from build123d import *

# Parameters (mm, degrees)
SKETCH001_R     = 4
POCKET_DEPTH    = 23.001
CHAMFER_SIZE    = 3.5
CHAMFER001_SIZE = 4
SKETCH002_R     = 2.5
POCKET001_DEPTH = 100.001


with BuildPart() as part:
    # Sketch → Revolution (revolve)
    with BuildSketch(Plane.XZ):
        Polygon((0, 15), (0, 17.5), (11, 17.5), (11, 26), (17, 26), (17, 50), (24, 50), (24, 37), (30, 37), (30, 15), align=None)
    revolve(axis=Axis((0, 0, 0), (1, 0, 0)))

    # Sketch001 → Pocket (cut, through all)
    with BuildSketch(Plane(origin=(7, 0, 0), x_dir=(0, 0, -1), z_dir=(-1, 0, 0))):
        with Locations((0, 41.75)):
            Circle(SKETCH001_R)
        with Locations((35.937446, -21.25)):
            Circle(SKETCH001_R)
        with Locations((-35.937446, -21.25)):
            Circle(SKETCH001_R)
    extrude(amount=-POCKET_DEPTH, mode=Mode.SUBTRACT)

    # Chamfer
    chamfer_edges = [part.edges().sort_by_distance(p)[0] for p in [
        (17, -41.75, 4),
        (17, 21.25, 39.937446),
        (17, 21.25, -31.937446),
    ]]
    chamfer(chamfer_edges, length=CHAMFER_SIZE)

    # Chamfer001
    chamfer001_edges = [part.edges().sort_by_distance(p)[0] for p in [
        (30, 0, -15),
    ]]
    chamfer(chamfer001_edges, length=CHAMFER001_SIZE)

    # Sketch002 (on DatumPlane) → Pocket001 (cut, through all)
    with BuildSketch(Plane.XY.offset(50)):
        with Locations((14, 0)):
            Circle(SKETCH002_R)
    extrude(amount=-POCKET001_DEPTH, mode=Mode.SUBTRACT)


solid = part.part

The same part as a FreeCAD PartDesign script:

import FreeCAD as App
import Part
import Sketcher
from FreeCAD import Vector
Q = App.Units.Quantity


def edges_at(feature, points):
    """Names of the edges that pass closest to the given points."""
    edges = feature.Shape.Edges
    near = lambda p: min(range(len(edges)), key=lambda i: edges[i].distToShape(Part.Vertex(*p))[0])
    return sorted({f"Edge{near(p) + 1}" for p in points})

doc = App.newDocument("Part")
params = doc.addObject("Spreadsheet::Sheet", "Params")
for row, (alias, value) in enumerate([
    ("sketch1_width", "30 mm"),
    ("sketch1_width2", "6 mm"),
    ("sketch1_width3", "7 mm"),
    ("sketch1_height", "22 mm"),
    ("sketch1_height2", "13 mm"),
    ("revolution_angle", "360 deg"),
    ("sketch2_diameter", "8 mm"),
    ("chamfer_size", "3.5 mm"),
    ("chamfer2_size", "4 mm"),
    ("sketch3_diameter", "5 mm"),
], start=1):
    params.set(f"A{row}", alias)
    params.set(f"B{row}", "=" + value)
    params.setAlias(f"B{row}", alias)

body = doc.addObject("PartDesign::Body", "Body")

sketch1 = doc.addObject("Sketcher::SketchObject", "Sketch")
body.addObject(sketch1)
sketch1.AttachmentSupport = (doc.XZ_Plane, [""])
sketch1.MapMode = "FlatFace"
sketch1.addGeometry([
    Part.LineSegment(Vector(0, 17.5, 0), Vector(0, 15, 0)),
    Part.LineSegment(Vector(0, 15, 0), Vector(30, 15, 0)),
    Part.LineSegment(Vector(30, 15, 0), Vector(30, 37, 0)),
    Part.LineSegment(Vector(30, 37, 0), Vector(24, 37, 0)),
    Part.LineSegment(Vector(24, 37, 0), Vector(24, 50, 0)),
    Part.LineSegment(Vector(24, 50, 0), Vector(17, 50, 0)),
    Part.LineSegment(Vector(17, 50, 0), Vector(17, 26, 0)),
    Part.LineSegment(Vector(17, 26, 0), Vector(11, 26, 0)),
    Part.LineSegment(Vector(11, 26, 0), Vector(11, 17.5, 0)),
    Part.LineSegment(Vector(11, 17.5, 0), Vector(0, 17.5, 0)),
], False)
sketch1.addConstraint([
    Sketcher.Constraint("Coincident", 0, 2, 1, 1),
    Sketcher.Constraint("Coincident", 1, 2, 2, 1),
    Sketcher.Constraint("Coincident", 2, 2, 3, 1),
    Sketcher.Constraint("Coincident", 3, 2, 4, 1),
    Sketcher.Constraint("Coincident", 4, 2, 5, 1),
    Sketcher.Constraint("Coincident", 5, 2, 6, 1),
    Sketcher.Constraint("Coincident", 6, 2, 7, 1),
    Sketcher.Constraint("Coincident", 7, 2, 8, 1),
    Sketcher.Constraint("Coincident", 8, 2, 9, 1),
    Sketcher.Constraint("Coincident", 9, 2, 0, 1),
    Sketcher.Constraint("Vertical", 0),
    Sketcher.Constraint("Horizontal", 1),
    Sketcher.Constraint("Vertical", 2),
    Sketcher.Constraint("Horizontal", 3),
    Sketcher.Constraint("Vertical", 4),
    Sketcher.Constraint("Horizontal", 5),
    Sketcher.Constraint("Vertical", 6),
    Sketcher.Constraint("Horizontal", 7),
    Sketcher.Constraint("Vertical", 8),
    Sketcher.Constraint("Horizontal", 9),
    Sketcher.Constraint("PointOnObject", 0, 2, -2),
    Sketcher.Constraint("Equal", 3, 7),
    Sketcher.Constraint("DistanceX", 1, 1, 1, 2, Q("30 mm")),
    Sketcher.Constraint("DistanceX", 3, 2, 3, 1, Q("6 mm")),
    Sketcher.Constraint("DistanceX", 5, 2, 5, 1, Q("7 mm")),
    Sketcher.Constraint("DistanceY", 2, 1, 2, 2, Q("22 mm")),
    Sketcher.Constraint("DistanceY", 4, 1, 4, 2, Q("13 mm")),
    Sketcher.Constraint("DistanceY", 6, 2, 6, 1, Q("24 mm")),
    Sketcher.Constraint("DistanceY", 0, 2, 0, 1, Q("2.5 mm")),
    Sketcher.Constraint("DistanceY", -1, 1, 0, 2, Q("15 mm")),
])
sketch1.setExpression("Constraints[22]", "Params.sketch1_width")
sketch1.setExpression("Constraints[23]", "Params.sketch1_width2")
sketch1.setExpression("Constraints[24]", "Params.sketch1_width3")
sketch1.setExpression("Constraints[25]", "Params.sketch1_height")
sketch1.setExpression("Constraints[26]", "Params.sketch1_height2")
revolution = doc.addObject("PartDesign::Revolution", "Revolution")
body.addObject(revolution)
revolution.Profile = sketch1
revolution.ReferenceAxis = (sketch1, ["H_Axis"])
revolution.setExpression("Angle", "Params.revolution_angle")

sketch2 = doc.addObject("Sketcher::SketchObject", "Sketch001")
body.addObject(sketch2)
sketch2.AttachmentSupport = (doc.YZ_Plane, [""])
sketch2.MapMode = "FlatFace"
sketch2.AttachmentOffset = App.Placement(Vector(0, 0, 7), App.Rotation())
sketch2.addGeometry([
    Part.Circle(Vector(-41.8, 0, 0), Vector(0, 0, 1), 4),
    Part.Circle(Vector(21.2, -35.9, 0), Vector(0, 0, 1), 4),
    Part.Circle(Vector(21.2, 35.9, 0), Vector(0, 0, 1), 4),
], False)
sketch2.addConstraint([
    Sketcher.Constraint("Equal", 0, 1),
    Sketcher.Constraint("Equal", 1, 2),
    Sketcher.Constraint("Symmetric", 1, 3, 2, 3, -1),
    Sketcher.Constraint("PointOnObject", 0, 3, -1),
    Sketcher.Constraint("Diameter", 0, Q("8 mm")),
    Sketcher.Constraint("DistanceX", 0, 3, 1, 3, Q("63 mm")),
    Sketcher.Constraint("DistanceX", 0, 3, -1, 1, Q("41.75 mm")),
    Sketcher.Constraint("DistanceY", 1, 3, -1, 1, Q("35.937446 mm")),
])
sketch2.setExpression("Constraints[4]", "Params.sketch2_diameter")
pocket1 = doc.addObject("PartDesign::Pocket", "Pocket")
body.addObject(pocket1)
pocket1.Profile = sketch2
pocket1.Type = "ThroughAll"
pocket1.Reversed = True
doc.recompute()

chamfer = doc.addObject("PartDesign::Chamfer", "Chamfer")
body.addObject(chamfer)
chamfer.Base = (pocket1, edges_at(pocket1, [(17, -41.75, 4), (17, 21.25, 39.937), (17, 21.25, -31.937)]))
chamfer.setExpression("Size", "Params.chamfer_size")
doc.recompute()

chamfer2 = doc.addObject("PartDesign::Chamfer", "Chamfer001")
body.addObject(chamfer2)
chamfer2.Base = (chamfer, edges_at(chamfer, [(30, 0, -15)]))
chamfer2.setExpression("Size", "Params.chamfer2_size")

sketch3 = doc.addObject("Sketcher::SketchObject", "Sketch002")
body.addObject(sketch3)
sketch3.AttachmentSupport = (doc.XY_Plane, [""])
sketch3.MapMode = "FlatFace"
sketch3.AttachmentOffset = App.Placement(Vector(0, 0, 50), App.Rotation())
sketch3.addGeometry(Part.Circle(Vector(14, 0, 0), Vector(0, 0, 1), 2.5), False)
sketch3.addConstraint([
    Sketcher.Constraint("PointOnObject", 0, 3, -1),
    Sketcher.Constraint("Diameter", 0, Q("5 mm")),
    Sketcher.Constraint("DistanceX", -1, 1, 0, 3, Q("14 mm")),
])
sketch3.setExpression("Constraints[1]", "Params.sketch3_diameter")
pocket2 = doc.addObject("PartDesign::Pocket", "Pocket001")
body.addObject(pocket2)
pocket2.Profile = sketch3
pocket2.Type = "ThroughAll"

doc.recompute()
